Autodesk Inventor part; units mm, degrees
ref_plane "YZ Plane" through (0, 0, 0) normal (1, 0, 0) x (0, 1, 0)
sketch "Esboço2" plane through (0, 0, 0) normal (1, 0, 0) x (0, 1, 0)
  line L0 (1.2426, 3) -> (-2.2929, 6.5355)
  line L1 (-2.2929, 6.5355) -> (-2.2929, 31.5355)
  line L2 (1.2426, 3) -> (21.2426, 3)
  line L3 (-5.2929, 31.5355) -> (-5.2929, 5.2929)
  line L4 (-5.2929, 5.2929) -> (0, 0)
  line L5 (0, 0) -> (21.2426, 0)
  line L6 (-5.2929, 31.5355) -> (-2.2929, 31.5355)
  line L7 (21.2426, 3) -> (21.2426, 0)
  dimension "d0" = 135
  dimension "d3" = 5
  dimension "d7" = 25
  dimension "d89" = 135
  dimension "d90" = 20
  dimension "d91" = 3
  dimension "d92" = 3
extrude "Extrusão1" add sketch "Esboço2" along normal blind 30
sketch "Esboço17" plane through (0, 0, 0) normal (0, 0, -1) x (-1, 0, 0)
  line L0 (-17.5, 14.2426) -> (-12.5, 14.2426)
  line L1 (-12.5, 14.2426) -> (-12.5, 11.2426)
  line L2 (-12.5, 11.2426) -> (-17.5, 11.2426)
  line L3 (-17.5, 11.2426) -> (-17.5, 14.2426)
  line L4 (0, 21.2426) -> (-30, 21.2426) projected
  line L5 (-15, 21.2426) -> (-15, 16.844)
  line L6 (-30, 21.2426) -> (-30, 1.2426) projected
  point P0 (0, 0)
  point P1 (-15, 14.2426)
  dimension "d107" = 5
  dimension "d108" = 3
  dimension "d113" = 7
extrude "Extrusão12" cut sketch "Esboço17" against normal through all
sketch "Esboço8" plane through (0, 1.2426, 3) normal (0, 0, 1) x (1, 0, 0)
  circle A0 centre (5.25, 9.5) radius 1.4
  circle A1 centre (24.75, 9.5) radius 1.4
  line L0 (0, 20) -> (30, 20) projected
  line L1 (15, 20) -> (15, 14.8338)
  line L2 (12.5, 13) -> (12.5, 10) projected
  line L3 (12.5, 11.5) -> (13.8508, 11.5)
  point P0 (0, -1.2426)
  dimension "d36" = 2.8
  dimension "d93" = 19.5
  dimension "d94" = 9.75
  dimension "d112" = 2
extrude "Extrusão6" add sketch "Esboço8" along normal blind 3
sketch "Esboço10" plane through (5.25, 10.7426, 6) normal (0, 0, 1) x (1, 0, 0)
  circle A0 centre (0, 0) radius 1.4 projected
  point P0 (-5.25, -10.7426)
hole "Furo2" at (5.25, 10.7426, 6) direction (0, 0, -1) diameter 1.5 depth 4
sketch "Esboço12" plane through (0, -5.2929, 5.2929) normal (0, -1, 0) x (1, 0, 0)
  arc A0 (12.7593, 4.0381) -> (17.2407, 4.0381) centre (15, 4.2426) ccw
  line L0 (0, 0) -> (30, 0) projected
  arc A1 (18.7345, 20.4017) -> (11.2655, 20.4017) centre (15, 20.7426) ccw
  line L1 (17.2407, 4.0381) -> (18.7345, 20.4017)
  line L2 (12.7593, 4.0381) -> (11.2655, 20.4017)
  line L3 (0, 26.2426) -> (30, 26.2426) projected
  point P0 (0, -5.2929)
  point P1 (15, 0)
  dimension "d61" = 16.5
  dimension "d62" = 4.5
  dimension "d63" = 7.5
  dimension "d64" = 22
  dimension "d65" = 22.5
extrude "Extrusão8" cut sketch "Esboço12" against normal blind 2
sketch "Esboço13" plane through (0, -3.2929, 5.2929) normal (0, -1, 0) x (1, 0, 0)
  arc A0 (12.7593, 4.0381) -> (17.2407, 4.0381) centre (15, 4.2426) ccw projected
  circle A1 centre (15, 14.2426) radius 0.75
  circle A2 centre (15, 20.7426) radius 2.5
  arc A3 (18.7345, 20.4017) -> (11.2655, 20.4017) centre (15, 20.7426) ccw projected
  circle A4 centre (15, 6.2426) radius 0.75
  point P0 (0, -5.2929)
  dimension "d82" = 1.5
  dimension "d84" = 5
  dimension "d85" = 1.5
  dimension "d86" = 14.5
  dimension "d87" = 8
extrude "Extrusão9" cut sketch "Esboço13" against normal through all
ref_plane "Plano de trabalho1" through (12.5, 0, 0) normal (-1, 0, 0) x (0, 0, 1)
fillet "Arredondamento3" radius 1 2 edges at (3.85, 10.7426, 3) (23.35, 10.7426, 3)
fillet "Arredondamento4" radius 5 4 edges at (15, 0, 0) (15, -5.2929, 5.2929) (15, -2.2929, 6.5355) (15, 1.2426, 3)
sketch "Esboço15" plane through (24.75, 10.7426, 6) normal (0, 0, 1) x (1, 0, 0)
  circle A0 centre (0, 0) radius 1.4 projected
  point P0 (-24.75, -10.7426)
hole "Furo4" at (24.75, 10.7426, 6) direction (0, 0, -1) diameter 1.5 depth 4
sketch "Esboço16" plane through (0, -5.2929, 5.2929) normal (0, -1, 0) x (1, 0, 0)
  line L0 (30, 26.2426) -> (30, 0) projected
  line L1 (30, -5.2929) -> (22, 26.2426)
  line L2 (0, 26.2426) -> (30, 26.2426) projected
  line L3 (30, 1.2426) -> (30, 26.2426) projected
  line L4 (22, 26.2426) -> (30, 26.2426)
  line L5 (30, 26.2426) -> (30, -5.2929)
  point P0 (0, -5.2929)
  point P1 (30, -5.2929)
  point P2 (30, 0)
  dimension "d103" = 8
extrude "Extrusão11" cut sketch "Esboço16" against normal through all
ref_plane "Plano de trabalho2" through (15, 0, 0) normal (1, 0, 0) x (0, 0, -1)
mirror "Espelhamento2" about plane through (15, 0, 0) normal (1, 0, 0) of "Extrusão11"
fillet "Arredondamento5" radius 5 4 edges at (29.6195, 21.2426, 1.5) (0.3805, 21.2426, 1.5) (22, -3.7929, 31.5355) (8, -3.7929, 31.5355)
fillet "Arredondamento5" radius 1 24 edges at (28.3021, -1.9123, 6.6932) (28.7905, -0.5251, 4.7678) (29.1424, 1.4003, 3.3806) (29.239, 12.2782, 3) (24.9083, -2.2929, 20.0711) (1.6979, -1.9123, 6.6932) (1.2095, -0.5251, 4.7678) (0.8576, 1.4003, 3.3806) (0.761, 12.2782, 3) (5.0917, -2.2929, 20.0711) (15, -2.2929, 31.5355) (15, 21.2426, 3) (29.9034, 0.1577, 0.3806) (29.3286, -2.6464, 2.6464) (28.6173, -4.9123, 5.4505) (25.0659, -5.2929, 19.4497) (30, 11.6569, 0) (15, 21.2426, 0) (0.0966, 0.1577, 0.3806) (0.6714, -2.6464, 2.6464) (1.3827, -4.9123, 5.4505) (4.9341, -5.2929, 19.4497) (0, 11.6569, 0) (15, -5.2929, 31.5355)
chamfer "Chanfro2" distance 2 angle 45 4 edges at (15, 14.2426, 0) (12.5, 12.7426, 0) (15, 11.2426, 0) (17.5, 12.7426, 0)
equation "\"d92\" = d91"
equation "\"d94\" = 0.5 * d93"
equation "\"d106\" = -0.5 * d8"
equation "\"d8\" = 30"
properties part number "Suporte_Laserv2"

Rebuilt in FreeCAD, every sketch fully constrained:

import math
import FreeCAD as App
import Part
import Sketcher
Q = App.Units.Quantity


def edges_at(feature, points):
    """Names of the edges that pass closest to the given points."""
    edges = feature.Shape.Edges
    near = lambda p: min(range(len(edges)), key=lambda i: edges[i].distToShape(Part.Vertex(*p))[0])
    return sorted({f"Edge{near(p) + 1}" for p in points})

doc = App.newDocument("Part")
body = doc.addObject("PartDesign::Body", "Body")

# Sketch on YZ plane
sketch1 = doc.addObject("Sketcher::SketchObject", "Sketch")
body.addObject(sketch1)
sketch1.AttachmentSupport = (doc.YZ_Plane, [""])
sketch1.MapMode = "FlatFace"
sketch1.addGeometry(Part.LineSegment(App.Vector(21.2, 3, 0), App.Vector(1.2, 3, 0)), False)
sketch1.addGeometry(Part.LineSegment(App.Vector(1.2, 3, 0), App.Vector(-2.3, 6.5, 0)), False)
sketch1.addGeometry(Part.LineSegment(App.Vector(-2.3, 6.5, 0), App.Vector(-2.3, 31.5, 0)), False)
sketch1.addGeometry(Part.LineSegment(App.Vector(-2.3, 31.5, 0), App.Vector(-5.3, 31.5, 0)), False)
sketch1.addGeometry(Part.LineSegment(App.Vector(-5.3, 31.5, 0), App.Vector(-5.3, 5.3, 0)), False)
sketch1.addGeometry(Part.LineSegment(App.Vector(-5.3, 5.3, 0), App.Vector(0, 0, 0)), False)
sketch1.addGeometry(Part.LineSegment(App.Vector(0, 0, 0), App.Vector(21.2, 0, 0)), False)
sketch1.addGeometry(Part.LineSegment(App.Vector(21.2, 0, 0), App.Vector(21.2, 3, 0)), False)
sketch1.addConstraint(Sketcher.Constraint("Coincident", 0, 2, 1, 1))
sketch1.addConstraint(Sketcher.Constraint("Coincident", 1, 2, 2, 1))
sketch1.addConstraint(Sketcher.Constraint("Coincident", 2, 2, 3, 1))
sketch1.addConstraint(Sketcher.Constraint("Coincident", 3, 2, 4, 1))
sketch1.addConstraint(Sketcher.Constraint("Coincident", 4, 2, 5, 1))
sketch1.addConstraint(Sketcher.Constraint("Coincident", 5, 2, 6, 1))
sketch1.addConstraint(Sketcher.Constraint("Coincident", 6, 2, 7, 1))
sketch1.addConstraint(Sketcher.Constraint("Coincident", 7, 2, 0, 1))
sketch1.addConstraint(Sketcher.Constraint("Horizontal", 0))
sketch1.addConstraint(Sketcher.Constraint("Vertical", 2))
sketch1.addConstraint(Sketcher.Constraint("Horizontal", 3))
sketch1.addConstraint(Sketcher.Constraint("Vertical", 4))
sketch1.addConstraint(Sketcher.Constraint("Horizontal", 6))
sketch1.addConstraint(Sketcher.Constraint("Vertical", 7))
sketch1.addConstraint(Sketcher.Constraint("Coincident", 5, 2, -1, 1))
sketch1.addConstraint(Sketcher.Constraint("Parallel", 1, 5))
sketch1.addConstraint(Sketcher.Constraint("Equal", 3, 7))
sketch1.addConstraint(Sketcher.Constraint("DistanceX", 0, 2, 0, 1, 20.0))
sketch1.addConstraint(Sketcher.Constraint("DistanceX", 3, 2, 3, 1, 3.0))
sketch1.addConstraint(Sketcher.Constraint("DistanceY", 2, 1, 2, 2, 25.0))
sketch1.addConstraint(Sketcher.Constraint("Angle", 1, Q("135 deg")))
sketch1.addConstraint(Sketcher.Constraint("Distance", 1, 5.0))
sketch1.addConstraint(Sketcher.Constraint("DistanceX", 6, 1, 6, 2, 21.2426))
pad1 = doc.addObject("PartDesign::Pad", "Pad")
body.addObject(pad1)
pad1.Profile = sketch1
pad1.Length = 30

# Sketch on XY plane
sketch2 = doc.addObject("Sketcher::SketchObject", "Sketch001")
body.addObject(sketch2)
sketch2.AttachmentSupport = (doc.XY_Plane, [""])
sketch2.MapMode = "FlatFace"
sketch2.addGeometry(Part.LineSegment(App.Vector(12.5, 14.2, 0), App.Vector(17.5, 14.2, 0)), False)
sketch2.addGeometry(Part.LineSegment(App.Vector(17.5, 14.2, 0), App.Vector(17.5, 11.2, 0)), False)
sketch2.addGeometry(Part.LineSegment(App.Vector(17.5, 11.2, 0), App.Vector(12.5, 11.2, 0)), False)
sketch2.addGeometry(Part.LineSegment(App.Vector(12.5, 11.2, 0), App.Vector(12.5, 14.2, 0)), False)
sketch2.addConstraint(Sketcher.Constraint("Coincident", 0, 2, 1, 1))
sketch2.addConstraint(Sketcher.Constraint("Coincident", 1, 2, 2, 1))
sketch2.addConstraint(Sketcher.Constraint("Coincident", 2, 2, 3, 1))
sketch2.addConstraint(Sketcher.Constraint("Coincident", 3, 2, 0, 1))
sketch2.addConstraint(Sketcher.Constraint("Horizontal", 0))
sketch2.addConstraint(Sketcher.Constraint("Vertical", 1))
sketch2.addConstraint(Sketcher.Constraint("Horizontal", 2))
sketch2.addConstraint(Sketcher.Constraint("Vertical", 3))
sketch2.addConstraint(Sketcher.Constraint("DistanceX", 0, 1, 0, 2, 5.0))
sketch2.addConstraint(Sketcher.Constraint("DistanceY", 1, 2, 1, 1, 3.0))
sketch2.addConstraint(Sketcher.Constraint("DistanceX", -1, 1, 0, 2, 17.5))
sketch2.addConstraint(Sketcher.Constraint("DistanceY", -1, 1, 0, 2, 14.2426))
pocket1 = doc.addObject("PartDesign::Pocket", "Pocket")
body.addObject(pocket1)
pocket1.Profile = sketch2
pocket1.Type = "ThroughAll"
pocket1.Reversed = True

# Sketch on XY plane
sketch3 = doc.addObject("Sketcher::SketchObject", "Sketch002")
body.addObject(sketch3)
sketch3.AttachmentSupport = (doc.XY_Plane, [""])
sketch3.MapMode = "FlatFace"
sketch3.AttachmentOffset = App.Placement(App.Vector(0, 0, 3), App.Rotation())
sketch3.addGeometry(Part.Circle(App.Vector(5.2, 10.7, 0), App.Vector(0, 0, 1), 1.4), False)
sketch3.addGeometry(Part.Circle(App.Vector(24.8, 10.7, 0), App.Vector(0, 0, 1), 1.4), False)
sketch3.addConstraint(Sketcher.Constraint("Equal", 0, 1))
sketch3.addConstraint(Sketcher.Constraint("Horizontal", 0, 3, 1, 3))
sketch3.addConstraint(Sketcher.Constraint("Diameter", 0, 2.8))
sketch3.addConstraint(Sketcher.Constraint("DistanceX", 0, 3, 1, 3, 19.5))
sketch3.addConstraint(Sketcher.Constraint("DistanceX", -1, 1, 0, 3, 5.25))
sketch3.addConstraint(Sketcher.Constraint("DistanceY", -1, 1, 0, 3, 10.7426))
pad2 = doc.addObject("PartDesign::Pad", "Pad001")
body.addObject(pad2)
pad2.Profile = sketch3
pad2.Length = 3

# Sketch on XY plane
sketch4 = doc.addObject("Sketcher::SketchObject", "Sketch003")
body.addObject(sketch4)
sketch4.AttachmentSupport = (doc.XY_Plane, [""])
sketch4.MapMode = "FlatFace"
sketch4.AttachmentOffset = App.Placement(App.Vector(0, 0, 6), App.Rotation())
sketch4.addGeometry(Part.Circle(App.Vector(5.2, 10.7, 0), App.Vector(0, 0, 1), 0.8), False)
sketch4.addConstraint(Sketcher.Constraint("Diameter", 0, 1.5))
sketch4.addConstraint(Sketcher.Constraint("DistanceX", -1, 1, 0, 3, 5.25))
sketch4.addConstraint(Sketcher.Constraint("DistanceY", -1, 1, 0, 3, 10.7426))
doc.recompute()
hole = doc.addObject("PartDesign::Hole", "Hole")
body.addObject(hole)
hole.Profile = sketch4
hole.ThreadType = "None"
hole.Diameter = 1.5
hole.DepthType = "Dimension"
hole.Depth = 4
hole.DrillPoint = "Flat"

# Sketch on XZ plane
sketch5 = doc.addObject("Sketcher::SketchObject", "Sketch004")
body.addObject(sketch5)
sketch5.AttachmentSupport = (doc.XZ_Plane, [""])
sketch5.MapMode = "FlatFace"
sketch5.AttachmentOffset = App.Placement(App.Vector(0, 0, 5.2929), App.Rotation())
sketch5.addGeometry(Part.LineSegment(App.Vector(11.3, 25.7, 0), App.Vector(12.8, 9.3, 0)), False)
sketch5.addGeometry(Part.ArcOfCircle(Part.Circle(App.Vector(15, 9.5, 0), App.Vector(0, 0, 1), 2.3), math.radians(-175), math.radians(-5)), False)
sketch5.addGeometry(Part.LineSegment(App.Vector(17.2, 9.3, 0), App.Vector(18.7, 25.7, 0)), False)
sketch5.addGeometry(Part.ArcOfCircle(Part.Circle(App.Vector(15, 26, 0), App.Vector(0, 0, 1), 3.8), math.radians(-5), math.radians(185)), False)
sketch5.addConstraint(Sketcher.Constraint("Tangent", 0, 2, 1, 1))
sketch5.addConstraint(Sketcher.Constraint("Tangent", 1, 2, 2, 1))
sketch5.addConstraint(Sketcher.Constraint("Tangent", 2, 2, 3, 1))
sketch5.addConstraint(Sketcher.Constraint("Tangent", 3, 2, 0, 1))
sketch5.addConstraint(Sketcher.Constraint("Horizontal", 0, 2, 1, 2))
sketch5.addConstraint(Sketcher.Constraint("Radius", 1, 2.25))
sketch5.addConstraint(Sketcher.Constraint("Radius", 3, 3.75))
sketch5.addConstraint(Sketcher.Constraint("DistanceY", 1, 3, 3, 3, 16.5))
sketch5.addConstraint(Sketcher.Constraint("DistanceX", -1, 1, 1, 3, 15.0))
sketch5.addConstraint(Sketcher.Constraint("DistanceY", -1, 1, 0, 2, 9.331))
pocket2 = doc.addObject("PartDesign::Pocket", "Pocket001")
body.addObject(pocket2)
pocket2.Profile = sketch5
pocket2.Length = 2

# Sketch on XZ plane
sketch6 = doc.addObject("Sketcher::SketchObject", "Sketch005")
body.addObject(sketch6)
sketch6.AttachmentSupport = (doc.XZ_Plane, [""])
sketch6.MapMode = "FlatFace"
sketch6.AttachmentOffset = App.Placement(App.Vector(0, 0, 3.2929), App.Rotation())
sketch6.addGeometry(Part.Circle(App.Vector(15, 19.5, 0), App.Vector(0, 0, 1), 0.8), False)
sketch6.addGeometry(Part.Circle(App.Vector(15, 26, 0), App.Vector(0, 0, 1), 2.5), False)
sketch6.addGeometry(Part.Circle(App.Vector(15, 11.5, 0), App.Vector(0, 0, 1), 0.8), False)
sketch6.addConstraint(Sketcher.Constraint("Equal", 0, 2))
sketch6.addConstraint(Sketcher.Constraint("Vertical", 0, 3, 1, 3))
sketch6.addConstraint(Sketcher.Constraint("Vertical", 1, 3, 2, 3))
sketch6.addConstraint(Sketcher.Constraint("Diameter", 1, 5.0))
sketch6.addConstraint(Sketcher.Constraint("Diameter", 0, 1.5))
sketch6.addConstraint(Sketcher.Constraint("DistanceY", 2, 3, 0, 3, 8.0))
sketch6.addConstraint(Sketcher.Constraint("DistanceY", 2, 3, 1, 3, 14.5))
sketch6.addConstraint(Sketcher.Constraint("DistanceX", -1, 1, 0, 3, 15.0))
sketch6.addConstraint(Sketcher.Constraint("DistanceY", -1, 1, 0, 3, 19.5355))
pocket3 = doc.addObject("PartDesign::Pocket", "Pocket002")
body.addObject(pocket3)
pocket3.Profile = sketch6
pocket3.Type = "ThroughAll"
doc.recompute()

fillet = doc.addObject("PartDesign::Fillet", "Fillet")
body.addObject(fillet)
fillet.Base = (pocket3, edges_at(pocket3, [(3.85, 10.743, 3), (23.35, 10.743, 3)]))
fillet.Radius = 1
doc.recompute()

fillet2 = doc.addObject("PartDesign::Fillet", "Fillet001")
body.addObject(fillet2)
fillet2.Base = (fillet, edges_at(fillet, [
    (15, 0, 0),
    (15, -5.293, 5.293),
    (15, -2.293, 6.535),
    (15, 1.243, 3),
]))
fillet2.Radius = 5

# Sketch on XY plane
sketch7 = doc.addObject("Sketcher::SketchObject", "Sketch006")
body.addObject(sketch7)
sketch7.AttachmentSupport = (doc.XY_Plane, [""])
sketch7.MapMode = "FlatFace"
sketch7.AttachmentOffset = App.Placement(App.Vector(0, 0, 6), App.Rotation())
sketch7.addGeometry(Part.Circle(App.Vector(24.8, 10.7, 0), App.Vector(0, 0, 1), 0.8), False)
sketch7.addConstraint(Sketcher.Constraint("Diameter", 0, 1.5))
sketch7.addConstraint(Sketcher.Constraint("DistanceX", -1, 1, 0, 3, 24.75))
sketch7.addConstraint(Sketcher.Constraint("DistanceY", -1, 1, 0, 3, 10.7426))
doc.recompute()
hole2 = doc.addObject("PartDesign::Hole", "Hole001")
body.addObject(hole2)
hole2.Profile = sketch7
hole2.ThreadType = "None"
hole2.Diameter = 1.5
hole2.DepthType = "Dimension"
hole2.Depth = 4
hole2.DrillPoint = "Flat"

# Sketch on XZ plane
sketch8 = doc.addObject("Sketcher::SketchObject", "Sketch007")
body.addObject(sketch8)
sketch8.AttachmentSupport = (doc.XZ_Plane, [""])
sketch8.MapMode = "FlatFace"
sketch8.AttachmentOffset = App.Placement(App.Vector(0, 0, 5.2929), App.Rotation())
sketch8.addGeometry(Part.LineSegment(App.Vector(30, 0, 0), App.Vector(30, 32, 0)), False)
sketch8.addGeometry(Part.LineSegment(App.Vector(30, 32, 0), App.Vector(22, 32, 0)), False)
sketch8.addGeometry(Part.LineSegment(App.Vector(22, 32, 0), App.Vector(30, 0, 0)), False)
sketch8.addConstraint(Sketcher.Constraint("Coincident", 0, 2, 1, 1))
sketch8.addConstraint(Sketcher.Constraint("Coincident", 1, 2, 2, 1))
sketch8.addConstraint(Sketcher.Constraint("Coincident", 2, 2, 0, 1))
sketch8.addConstraint(Sketcher.Constraint("Vertical", 0))
sketch8.addConstraint(Sketcher.Constraint("Horizontal", 1))
sketch8.addConstraint(Sketcher.Constraint("PointOnObject", 2, 2, -1))
sketch8.addConstraint(Sketcher.Constraint("DistanceX", 1, 2, 1, 1, 8.0))
sketch8.addConstraint(Sketcher.Constraint("DistanceX", -1, 1, 0, 2, 30.0))
sketch8.addConstraint(Sketcher.Constraint("DistanceY", 0, 1, 0, 2, 31.5355))
pocket4 = doc.addObject("PartDesign::Pocket", "Pocket003")
body.addObject(pocket4)
pocket4.Profile = sketch8
pocket4.Type = "ThroughAll"
doc.recompute()

datumplane = doc.addObject("PartDesign::Plane", "DatumPlane")
body.addObject(datumplane)
datumplane.AttachmentSupport = (doc.YZ_Plane, [""])
datumplane.MapMode = "FlatFace"
datumplane.AttachmentOffset = App.Placement(App.Vector(0, 0, 15), App.Rotation())
mirrored = doc.addObject("PartDesign::Mirrored", "Mirrored")
body.addObject(mirrored)
mirrored.Originals = [pocket4]
mirrored.MirrorPlane = (datumplane, [""])
body.Tip = mirrored
doc.recompute()

fillet3 = doc.addObject("PartDesign::Fillet", "Fillet002")
body.addObject(fillet3)
fillet3.Base = (mirrored, edges_at(mirrored, [
    (29.619, 21.243, 1.5),
    (0.381, 21.243, 1.5),
    (22, -3.793, 31.535),
    (8, -3.793, 31.535),
]))
fillet3.Radius = 5
doc.recompute()

fillet4 = doc.addObject("PartDesign::Fillet", "Fillet003")
body.addObject(fillet4)
fillet4.Base = (fillet3, edges_at(fillet3, [
    (28.302, -1.912, 6.693),
    (28.791, -0.525, 4.768),
    (29.142, 1.4, 3.381),
    (29.239, 12.278, 3),
    (24.908, -2.293, 20.071),
    (1.698, -1.912, 6.693),
    (1.21, -0.525, 4.768),
    (0.858, 1.4, 3.381),
    (0.761, 12.278, 3),
    (5.092, -2.293, 20.071),
    (15, -2.293, 31.535),
    (15, 21.243, 3),
    (29.903, 0.158, 0.381),
    (29.329, -2.646, 2.646),
    (28.617, -4.912, 5.45),
    (25.066, -5.293, 19.45),
    (30, 11.657, 0),
    (15, 21.243, 0),
    (0.097, 0.158, 0.381),
    (0.671, -2.646, 2.646),
    (1.383, -4.912, 5.45),
    (4.934, -5.293, 19.45),
    (0, 11.657, 0),
    (15, -5.293, 31.535),
]))
fillet4.Radius = 1
doc.recompute()

chamfer = doc.addObject("PartDesign::Chamfer", "Chamfer")
body.addObject(chamfer)
chamfer.Base = (fillet4, edges_at(fillet4, [
    (15, 14.243, 0),
    (12.5, 12.743, 0),
    (15, 11.243, 0),
    (17.5, 12.743, 0),
]))
chamfer.Size = 2

doc.recompute()
